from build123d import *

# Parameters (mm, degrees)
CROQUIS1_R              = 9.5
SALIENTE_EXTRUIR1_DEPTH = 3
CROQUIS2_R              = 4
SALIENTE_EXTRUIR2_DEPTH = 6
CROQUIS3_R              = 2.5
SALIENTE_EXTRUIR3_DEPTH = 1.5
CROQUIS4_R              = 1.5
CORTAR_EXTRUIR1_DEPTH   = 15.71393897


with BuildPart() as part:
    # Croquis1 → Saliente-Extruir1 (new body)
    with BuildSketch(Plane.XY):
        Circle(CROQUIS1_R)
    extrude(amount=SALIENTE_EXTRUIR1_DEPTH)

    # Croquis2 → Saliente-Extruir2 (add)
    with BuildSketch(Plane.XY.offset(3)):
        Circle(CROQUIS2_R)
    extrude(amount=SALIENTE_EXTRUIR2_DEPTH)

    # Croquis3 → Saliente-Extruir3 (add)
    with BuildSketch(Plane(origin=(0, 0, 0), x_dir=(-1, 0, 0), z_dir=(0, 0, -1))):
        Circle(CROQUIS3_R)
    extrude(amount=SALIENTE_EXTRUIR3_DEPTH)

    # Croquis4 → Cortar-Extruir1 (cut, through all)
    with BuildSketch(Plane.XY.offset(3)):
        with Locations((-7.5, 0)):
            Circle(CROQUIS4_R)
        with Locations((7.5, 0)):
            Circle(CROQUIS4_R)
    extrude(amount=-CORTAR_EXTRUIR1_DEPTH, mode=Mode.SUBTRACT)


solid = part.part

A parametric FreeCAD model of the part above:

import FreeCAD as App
import Part
import Sketcher
from FreeCAD import Vector
Q = App.Units.Quantity

doc = App.newDocument("Part")
params = doc.addObject("Spreadsheet::Sheet", "Params")
for row, (alias, value) in enumerate([
    ("sketch1_diameter", "19 mm"),
    ("pad1_length", "3 mm"),
    ("sketch2_diameter", "8 mm"),
    ("pad2_length", "6 mm"),
    ("sketch3_diameter", "5 mm"),
    ("pad3_length", "1.5 mm"),
    ("sketch4_diameter", "3 mm"),
], start=1):
    params.set(f"A{row}", alias)
    params.set(f"B{row}", "=" + value)
    params.setAlias(f"B{row}", alias)

body = doc.addObject("PartDesign::Body", "Body")

# Sketch on XY plane
sketch1 = doc.addObject("Sketcher::SketchObject", "Sketch")
body.addObject(sketch1)
sketch1.AttachmentSupport = (doc.XY_Plane, [""])
sketch1.MapMode = "FlatFace"
sketch1.addGeometry(Part.Circle(Vector(0, 0, 0), Vector(0, 0, 1), 10), False)
sketch1.addConstraint([
    Sketcher.Constraint("Coincident", 0, 3, -1, 1),
    Sketcher.Constraint("Diameter", 0, Q("19 mm")),
])
sketch1.setExpression("Constraints[1]", "Params.sketch1_diameter")
pad1 = doc.addObject("PartDesign::Pad", "Pad")
body.addObject(pad1)
pad1.Profile = sketch1
pad1.setExpression("Length", "Params.pad1_length")

# Sketch on XY plane
sketch2 = doc.addObject("Sketcher::SketchObject", "Sketch001")
body.addObject(sketch2)
sketch2.AttachmentSupport = (doc.XY_Plane, [""])
sketch2.MapMode = "FlatFace"
sketch2.AttachmentOffset = App.Placement(Vector(0, 0, 3), App.Rotation())
sketch2.addGeometry(Part.Circle(Vector(0, 0, 0), Vector(0, 0, 1), 4), False)
sketch2.addConstraint([
    Sketcher.Constraint("Coincident", 0, 3, -1, 1),
    Sketcher.Constraint("Diameter", 0, Q("8 mm")),
])
sketch2.setExpression("Constraints[1]", "Params.sketch2_diameter")
pad2 = doc.addObject("PartDesign::Pad", "Pad001")
body.addObject(pad2)
pad2.Profile = sketch2
pad2.setExpression("Length", "Params.pad2_length")

# Sketch on XY plane
sketch3 = doc.addObject("Sketcher::SketchObject", "Sketch002")
body.addObject(sketch3)
sketch3.AttachmentSupport = (doc.XY_Plane, [""])
sketch3.MapMode = "FlatFace"
sketch3.addGeometry(Part.Circle(Vector(0, 0, 0), Vector(0, 0, 1), 2.5), False)
sketch3.addConstraint([
    Sketcher.Constraint("Coincident", 0, 3, -1, 1),
    Sketcher.Constraint("Diameter", 0, Q("5 mm")),
])
sketch3.setExpression("Constraints[1]", "Params.sketch3_diameter")
pad3 = doc.addObject("PartDesign::Pad", "Pad002")
body.addObject(pad3)
pad3.Profile = sketch3
pad3.setExpression("Length", "Params.pad3_length")
pad3.Reversed = True

# Sketch on XY plane
sketch4 = doc.addObject("Sketcher::SketchObject", "Sketch003")
body.addObject(sketch4)
sketch4.AttachmentSupport = (doc.XY_Plane, [""])
sketch4.MapMode = "FlatFace"
sketch4.AttachmentOffset = App.Placement(Vector(0, 0, 3), App.Rotation())
sketch4.addGeometry([
    Part.Circle(Vector(-7.5, 0, 0), Vector(0, 0, 1), 1.5),
    Part.Circle(Vector(7.5, 0, 0), Vector(0, 0, 1), 1.5),
], False)
sketch4.addConstraint([
    Sketcher.Constraint("Equal", 0, 1),
    Sketcher.Constraint("Symmetric", 0, 3, 1, 3, -1, 1),
    Sketcher.Constraint("PointOnObject", 0, 3, -1),
    Sketcher.Constraint("Diameter", 0, Q("3 mm")),
    Sketcher.Constraint("DistanceX", 0, 3, 1, 3, Q("15 mm")),
])
sketch4.setExpression("Constraints[3]", "Params.sketch4_diameter")
pocket1 = doc.addObject("PartDesign::Pocket", "Pocket")
body.addObject(pocket1)
pocket1.Profile = sketch4
pocket1.Type = "ThroughAll"

doc.recompute()
